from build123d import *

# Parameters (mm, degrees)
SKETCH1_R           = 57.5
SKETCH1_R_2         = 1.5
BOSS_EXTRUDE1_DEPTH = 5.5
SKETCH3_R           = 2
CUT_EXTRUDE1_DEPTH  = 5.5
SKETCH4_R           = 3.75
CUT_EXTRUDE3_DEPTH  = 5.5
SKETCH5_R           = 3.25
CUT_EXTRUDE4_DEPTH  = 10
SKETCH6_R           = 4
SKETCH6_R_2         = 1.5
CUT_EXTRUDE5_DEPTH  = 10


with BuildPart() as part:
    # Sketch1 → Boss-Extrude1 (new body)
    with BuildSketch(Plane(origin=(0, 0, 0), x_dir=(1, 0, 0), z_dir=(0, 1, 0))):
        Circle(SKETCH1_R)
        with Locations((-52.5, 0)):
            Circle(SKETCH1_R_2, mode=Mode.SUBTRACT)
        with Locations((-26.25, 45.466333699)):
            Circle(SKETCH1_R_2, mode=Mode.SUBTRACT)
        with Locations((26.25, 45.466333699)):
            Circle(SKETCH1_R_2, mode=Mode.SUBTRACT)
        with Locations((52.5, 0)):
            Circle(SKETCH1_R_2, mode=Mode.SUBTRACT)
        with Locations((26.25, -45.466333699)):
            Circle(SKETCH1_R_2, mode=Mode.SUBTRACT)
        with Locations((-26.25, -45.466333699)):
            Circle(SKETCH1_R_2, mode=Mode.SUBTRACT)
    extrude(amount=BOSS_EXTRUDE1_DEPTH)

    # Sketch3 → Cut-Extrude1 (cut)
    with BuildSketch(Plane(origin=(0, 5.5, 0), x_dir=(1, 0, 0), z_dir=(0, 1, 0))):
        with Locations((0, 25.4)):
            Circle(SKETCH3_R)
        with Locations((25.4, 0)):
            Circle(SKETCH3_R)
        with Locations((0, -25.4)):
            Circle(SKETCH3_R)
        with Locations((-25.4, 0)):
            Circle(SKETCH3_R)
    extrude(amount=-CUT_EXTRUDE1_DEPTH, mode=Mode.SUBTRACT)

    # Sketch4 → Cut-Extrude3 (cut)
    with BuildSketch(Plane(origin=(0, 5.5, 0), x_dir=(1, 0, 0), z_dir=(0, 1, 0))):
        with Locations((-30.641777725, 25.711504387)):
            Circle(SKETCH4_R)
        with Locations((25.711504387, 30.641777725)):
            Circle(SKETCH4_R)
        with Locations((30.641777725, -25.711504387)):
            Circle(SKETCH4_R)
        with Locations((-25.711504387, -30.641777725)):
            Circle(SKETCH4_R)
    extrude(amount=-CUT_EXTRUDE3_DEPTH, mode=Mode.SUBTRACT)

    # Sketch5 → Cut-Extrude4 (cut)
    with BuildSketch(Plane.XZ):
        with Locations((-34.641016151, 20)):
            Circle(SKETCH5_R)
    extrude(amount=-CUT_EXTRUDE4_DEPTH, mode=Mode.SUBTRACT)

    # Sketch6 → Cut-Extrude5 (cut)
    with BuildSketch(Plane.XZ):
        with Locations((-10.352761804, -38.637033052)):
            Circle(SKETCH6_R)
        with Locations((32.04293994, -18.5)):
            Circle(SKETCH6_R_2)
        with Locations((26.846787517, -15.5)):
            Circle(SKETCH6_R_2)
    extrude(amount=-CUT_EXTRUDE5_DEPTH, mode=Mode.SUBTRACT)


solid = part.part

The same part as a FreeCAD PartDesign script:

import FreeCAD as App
import Part
import Sketcher

V = App.Vector

doc = App.newDocument("Part")
params = doc.addObject("Spreadsheet::Sheet", "Params")
for row, (alias, value) in enumerate([
    ("sketch1_diameter", "115 mm"),
    ("sketch1_diameter2", "3 mm"),
    ("pad1_length", "5.5 mm"),
    ("sketch2_diameter", "4 mm"),
    ("pocket1_length", "5.5 mm"),
    ("sketch3_diameter", "7.5 mm"),
    ("pocket2_length", "5.5 mm"),
    ("sketch4_diameter", "6.5 mm"),
    ("pocket3_length", "10 mm"),
    ("sketch5_diameter", "8 mm"),
    ("sketch5_diameter2", "3 mm"),
    ("pocket4_length", "10 mm"),
], start=1):
    params.set(f"A{row}", alias)
    params.set(f"B{row}", "=" + value)
    params.setAlias(f"B{row}", alias)

body = doc.addObject("PartDesign::Body", "Body")

sketch1 = doc.addObject("Sketcher::SketchObject", "Sketch")
body.addObject(sketch1)
sketch1.AttachmentSupport = (doc.XZ_Plane, [""])
sketch1.MapMode = "FlatFace"
sketch1.addGeometry([
    Part.Circle(V(0, 0, 0), V(0, 0, 1), 57.5),
    Part.Circle(V(-26.2, 45.5, 0), V(0, 0, 1), 1.5),
    Part.Circle(V(26.2, 45.5, 0), V(0, 0, 1), 1.5),
    Part.Circle(V(-52.5, 0, 0), V(0, 0, 1), 1.5),
    Part.Circle(V(-26.2, -45.5, 0), V(0, 0, 1), 1.5),
    Part.Circle(V(52.5, 0, 0), V(0, 0, 1), 1.5),
    Part.Circle(V(26.2, -45.5, 0), V(0, 0, 1), 1.5),
], False)
sketch1.addConstraint([
    Sketcher.Constraint("Coincident", 0, 3, -1, 1),
    Sketcher.Constraint("Equal", 1, 2),
    Sketcher.Constraint("Equal", 2, 3),
    Sketcher.Constraint("Equal", 3, 4),
    Sketcher.Constraint("Equal", 4, 5),
    Sketcher.Constraint("Equal", 5, 6),
    Sketcher.Constraint("Symmetric", 2, 3, 4, 3, -1, 1),
    Sketcher.Constraint("Symmetric", 3, 3, 5, 3, -1, 1),
    Sketcher.Constraint("Symmetric", 1, 3, 6, 3, -1, 1),
    Sketcher.Constraint("Symmetric", 1, 3, 2, 3, -2),
    Sketcher.Constraint("PointOnObject", 3, 3, -1),
    Sketcher.Constraint("Diameter", 0, 115.0),
    Sketcher.Constraint("Diameter", 1, 3.0),
    Sketcher.Constraint("DistanceX", 3, 3, 5, 3, 105.0),
    Sketcher.Constraint("DistanceX", 1, 3, 2, 3, 52.5),
    Sketcher.Constraint("DistanceY", -1, 1, 1, 3, 45.466334),
])
sketch1.setExpression("Constraints[11]", "Params.sketch1_diameter")
sketch1.setExpression("Constraints[12]", "Params.sketch1_diameter2")
pad1 = doc.addObject("PartDesign::Pad", "Pad")
body.addObject(pad1)
pad1.Profile = sketch1
pad1.setExpression("Length", "Params.pad1_length")
pad1.Reversed = True

sketch2 = doc.addObject("Sketcher::SketchObject", "Sketch001")
body.addObject(sketch2)
sketch2.AttachmentSupport = (doc.XZ_Plane, [""])
sketch2.MapMode = "FlatFace"
sketch2.AttachmentOffset = App.Placement(V(0, 0, -5.5), App.Rotation())
sketch2.addGeometry([
    Part.Circle(V(0, -25.4, 0), V(0, 0, 1), 2),
    Part.Circle(V(25.4, 0, 0), V(0, 0, 1), 2),
    Part.Circle(V(0, 25.4, 0), V(0, 0, 1), 2),
    Part.Circle(V(-25.4, 0, 0), V(0, 0, 1), 2),
], False)
sketch2.addConstraint([
    Sketcher.Constraint("Equal", 0, 1),
    Sketcher.Constraint("Equal", 1, 2),
    Sketcher.Constraint("Equal", 2, 3),
    Sketcher.Constraint("Symmetric", 0, 3, 2, 3, -1, 1),
    Sketcher.Constraint("Symmetric", 1, 3, 3, 3, -1, 1),
    Sketcher.Constraint("PointOnObject", 0, 3, -2),
    Sketcher.Constraint("PointOnObject", 1, 3, -1),
    Sketcher.Constraint("Diameter", 0, 4.0),
    Sketcher.Constraint("DistanceY", 0, 3, -1, 1, 25.4),
    Sketcher.Constraint("DistanceX", -1, 1, 1, 3, 25.4),
])
sketch2.setExpression("Constraints[7]", "Params.sketch2_diameter")
pocket1 = doc.addObject("PartDesign::Pocket", "Pocket")
body.addObject(pocket1)
pocket1.Profile = sketch2
pocket1.setExpression("Length", "Params.pocket1_length")
pocket1.Reversed = True

sketch3 = doc.addObject("Sketcher::SketchObject", "Sketch002")
body.addObject(sketch3)
sketch3.AttachmentSupport = (doc.XZ_Plane, [""])
sketch3.MapMode = "FlatFace"
sketch3.AttachmentOffset = App.Placement(V(0, 0, -5.5), App.Rotation())
sketch3.addGeometry([
    Part.Circle(V(-30.6, -25.7, 0), V(0, 0, 1), 3.8),
    Part.Circle(V(25.7, -30.6, 0), V(0, 0, 1), 3.8),
    Part.Circle(V(30.6, 25.7, 0), V(0, 0, 1), 3.8),
    Part.Circle(V(-25.7, 30.6, 0), V(0, 0, 1), 3.8),
], False)
sketch3.addConstraint([
    Sketcher.Constraint("Equal", 0, 1),
    Sketcher.Constraint("Equal", 1, 2),
    Sketcher.Constraint("Equal", 2, 3),
    Sketcher.Constraint("Symmetric", 0, 3, 2, 3, -1, 1),
    Sketcher.Constraint("Symmetric", 1, 3, 3, 3, -1, 1),
    Sketcher.Constraint("Diameter", 0, 7.5),
    Sketcher.Constraint("DistanceY", 0, 3, 2, 3, 51.423009),
    Sketcher.Constraint("DistanceX", 3, 3, 1, 3, 51.423009),
    Sketcher.Constraint("DistanceX", 0, 3, -1, 1, 30.641778),
    Sketcher.Constraint("DistanceY", 1, 3, -1, 1, 30.641778),
])
sketch3.setExpression("Constraints[5]", "Params.sketch3_diameter")
pocket2 = doc.addObject("PartDesign::Pocket", "Pocket001")
body.addObject(pocket2)
pocket2.Profile = sketch3
pocket2.setExpression("Length", "Params.pocket2_length")
pocket2.Reversed = True

sketch4 = doc.addObject("Sketcher::SketchObject", "Sketch003")
body.addObject(sketch4)
sketch4.AttachmentSupport = (doc.XZ_Plane, [""])
sketch4.MapMode = "FlatFace"
sketch4.addGeometry(Part.Circle(V(-34.6, 20, 0), V(0, 0, 1), 3.2), False)
sketch4.addConstraint([
    Sketcher.Constraint("Diameter", 0, 6.5),
    Sketcher.Constraint("DistanceY", -1, 1, 0, 3, 20.0),
    Sketcher.Constraint("DistanceX", 0, 3, -1, 1, 34.641016),
])
sketch4.setExpression("Constraints[0]", "Params.sketch4_diameter")
pocket3 = doc.addObject("PartDesign::Pocket", "Pocket002")
body.addObject(pocket3)
pocket3.Profile = sketch4
pocket3.setExpression("Length", "Params.pocket3_length")

sketch5 = doc.addObject("Sketcher::SketchObject", "Sketch004")
body.addObject(sketch5)
sketch5.AttachmentSupport = (doc.XZ_Plane, [""])
sketch5.MapMode = "FlatFace"
sketch5.addGeometry([
    Part.Circle(V(-10.4, -38.6, 0), V(0, 0, 1), 4),
    Part.Circle(V(32, -18.5, 0), V(0, 0, 1), 1.5),
    Part.Circle(V(26.8, -15.5, 0), V(0, 0, 1), 1.5),
], False)
sketch5.addConstraint([
    Sketcher.Constraint("Equal", 1, 2),
    Sketcher.Constraint("Diameter", 0, 8.0),
    Sketcher.Constraint("Diameter", 1, 3.0),
    Sketcher.Constraint("DistanceY", 1, 3, 2, 3, 3.0),
    Sketcher.Constraint("DistanceY", 1, 3, -1, 1, 18.5),
    Sketcher.Constraint("DistanceX", 0, 3, 1, 3, 42.395702),
    Sketcher.Constraint("DistanceX", 0, 3, -1, 1, 10.352762),
    Sketcher.Constraint("DistanceX", 0, 3, 2, 3, 37.199549),
    Sketcher.Constraint("DistanceY", 0, 3, -1, 1, 38.637033),
])
sketch5.setExpression("Constraints[1]", "Params.sketch5_diameter")
sketch5.setExpression("Constraints[2]", "Params.sketch5_diameter2")
pocket4 = doc.addObject("PartDesign::Pocket", "Pocket003")
body.addObject(pocket4)
pocket4.Profile = sketch5
pocket4.setExpression("Length", "Params.pocket4_length")

doc.recompute()
